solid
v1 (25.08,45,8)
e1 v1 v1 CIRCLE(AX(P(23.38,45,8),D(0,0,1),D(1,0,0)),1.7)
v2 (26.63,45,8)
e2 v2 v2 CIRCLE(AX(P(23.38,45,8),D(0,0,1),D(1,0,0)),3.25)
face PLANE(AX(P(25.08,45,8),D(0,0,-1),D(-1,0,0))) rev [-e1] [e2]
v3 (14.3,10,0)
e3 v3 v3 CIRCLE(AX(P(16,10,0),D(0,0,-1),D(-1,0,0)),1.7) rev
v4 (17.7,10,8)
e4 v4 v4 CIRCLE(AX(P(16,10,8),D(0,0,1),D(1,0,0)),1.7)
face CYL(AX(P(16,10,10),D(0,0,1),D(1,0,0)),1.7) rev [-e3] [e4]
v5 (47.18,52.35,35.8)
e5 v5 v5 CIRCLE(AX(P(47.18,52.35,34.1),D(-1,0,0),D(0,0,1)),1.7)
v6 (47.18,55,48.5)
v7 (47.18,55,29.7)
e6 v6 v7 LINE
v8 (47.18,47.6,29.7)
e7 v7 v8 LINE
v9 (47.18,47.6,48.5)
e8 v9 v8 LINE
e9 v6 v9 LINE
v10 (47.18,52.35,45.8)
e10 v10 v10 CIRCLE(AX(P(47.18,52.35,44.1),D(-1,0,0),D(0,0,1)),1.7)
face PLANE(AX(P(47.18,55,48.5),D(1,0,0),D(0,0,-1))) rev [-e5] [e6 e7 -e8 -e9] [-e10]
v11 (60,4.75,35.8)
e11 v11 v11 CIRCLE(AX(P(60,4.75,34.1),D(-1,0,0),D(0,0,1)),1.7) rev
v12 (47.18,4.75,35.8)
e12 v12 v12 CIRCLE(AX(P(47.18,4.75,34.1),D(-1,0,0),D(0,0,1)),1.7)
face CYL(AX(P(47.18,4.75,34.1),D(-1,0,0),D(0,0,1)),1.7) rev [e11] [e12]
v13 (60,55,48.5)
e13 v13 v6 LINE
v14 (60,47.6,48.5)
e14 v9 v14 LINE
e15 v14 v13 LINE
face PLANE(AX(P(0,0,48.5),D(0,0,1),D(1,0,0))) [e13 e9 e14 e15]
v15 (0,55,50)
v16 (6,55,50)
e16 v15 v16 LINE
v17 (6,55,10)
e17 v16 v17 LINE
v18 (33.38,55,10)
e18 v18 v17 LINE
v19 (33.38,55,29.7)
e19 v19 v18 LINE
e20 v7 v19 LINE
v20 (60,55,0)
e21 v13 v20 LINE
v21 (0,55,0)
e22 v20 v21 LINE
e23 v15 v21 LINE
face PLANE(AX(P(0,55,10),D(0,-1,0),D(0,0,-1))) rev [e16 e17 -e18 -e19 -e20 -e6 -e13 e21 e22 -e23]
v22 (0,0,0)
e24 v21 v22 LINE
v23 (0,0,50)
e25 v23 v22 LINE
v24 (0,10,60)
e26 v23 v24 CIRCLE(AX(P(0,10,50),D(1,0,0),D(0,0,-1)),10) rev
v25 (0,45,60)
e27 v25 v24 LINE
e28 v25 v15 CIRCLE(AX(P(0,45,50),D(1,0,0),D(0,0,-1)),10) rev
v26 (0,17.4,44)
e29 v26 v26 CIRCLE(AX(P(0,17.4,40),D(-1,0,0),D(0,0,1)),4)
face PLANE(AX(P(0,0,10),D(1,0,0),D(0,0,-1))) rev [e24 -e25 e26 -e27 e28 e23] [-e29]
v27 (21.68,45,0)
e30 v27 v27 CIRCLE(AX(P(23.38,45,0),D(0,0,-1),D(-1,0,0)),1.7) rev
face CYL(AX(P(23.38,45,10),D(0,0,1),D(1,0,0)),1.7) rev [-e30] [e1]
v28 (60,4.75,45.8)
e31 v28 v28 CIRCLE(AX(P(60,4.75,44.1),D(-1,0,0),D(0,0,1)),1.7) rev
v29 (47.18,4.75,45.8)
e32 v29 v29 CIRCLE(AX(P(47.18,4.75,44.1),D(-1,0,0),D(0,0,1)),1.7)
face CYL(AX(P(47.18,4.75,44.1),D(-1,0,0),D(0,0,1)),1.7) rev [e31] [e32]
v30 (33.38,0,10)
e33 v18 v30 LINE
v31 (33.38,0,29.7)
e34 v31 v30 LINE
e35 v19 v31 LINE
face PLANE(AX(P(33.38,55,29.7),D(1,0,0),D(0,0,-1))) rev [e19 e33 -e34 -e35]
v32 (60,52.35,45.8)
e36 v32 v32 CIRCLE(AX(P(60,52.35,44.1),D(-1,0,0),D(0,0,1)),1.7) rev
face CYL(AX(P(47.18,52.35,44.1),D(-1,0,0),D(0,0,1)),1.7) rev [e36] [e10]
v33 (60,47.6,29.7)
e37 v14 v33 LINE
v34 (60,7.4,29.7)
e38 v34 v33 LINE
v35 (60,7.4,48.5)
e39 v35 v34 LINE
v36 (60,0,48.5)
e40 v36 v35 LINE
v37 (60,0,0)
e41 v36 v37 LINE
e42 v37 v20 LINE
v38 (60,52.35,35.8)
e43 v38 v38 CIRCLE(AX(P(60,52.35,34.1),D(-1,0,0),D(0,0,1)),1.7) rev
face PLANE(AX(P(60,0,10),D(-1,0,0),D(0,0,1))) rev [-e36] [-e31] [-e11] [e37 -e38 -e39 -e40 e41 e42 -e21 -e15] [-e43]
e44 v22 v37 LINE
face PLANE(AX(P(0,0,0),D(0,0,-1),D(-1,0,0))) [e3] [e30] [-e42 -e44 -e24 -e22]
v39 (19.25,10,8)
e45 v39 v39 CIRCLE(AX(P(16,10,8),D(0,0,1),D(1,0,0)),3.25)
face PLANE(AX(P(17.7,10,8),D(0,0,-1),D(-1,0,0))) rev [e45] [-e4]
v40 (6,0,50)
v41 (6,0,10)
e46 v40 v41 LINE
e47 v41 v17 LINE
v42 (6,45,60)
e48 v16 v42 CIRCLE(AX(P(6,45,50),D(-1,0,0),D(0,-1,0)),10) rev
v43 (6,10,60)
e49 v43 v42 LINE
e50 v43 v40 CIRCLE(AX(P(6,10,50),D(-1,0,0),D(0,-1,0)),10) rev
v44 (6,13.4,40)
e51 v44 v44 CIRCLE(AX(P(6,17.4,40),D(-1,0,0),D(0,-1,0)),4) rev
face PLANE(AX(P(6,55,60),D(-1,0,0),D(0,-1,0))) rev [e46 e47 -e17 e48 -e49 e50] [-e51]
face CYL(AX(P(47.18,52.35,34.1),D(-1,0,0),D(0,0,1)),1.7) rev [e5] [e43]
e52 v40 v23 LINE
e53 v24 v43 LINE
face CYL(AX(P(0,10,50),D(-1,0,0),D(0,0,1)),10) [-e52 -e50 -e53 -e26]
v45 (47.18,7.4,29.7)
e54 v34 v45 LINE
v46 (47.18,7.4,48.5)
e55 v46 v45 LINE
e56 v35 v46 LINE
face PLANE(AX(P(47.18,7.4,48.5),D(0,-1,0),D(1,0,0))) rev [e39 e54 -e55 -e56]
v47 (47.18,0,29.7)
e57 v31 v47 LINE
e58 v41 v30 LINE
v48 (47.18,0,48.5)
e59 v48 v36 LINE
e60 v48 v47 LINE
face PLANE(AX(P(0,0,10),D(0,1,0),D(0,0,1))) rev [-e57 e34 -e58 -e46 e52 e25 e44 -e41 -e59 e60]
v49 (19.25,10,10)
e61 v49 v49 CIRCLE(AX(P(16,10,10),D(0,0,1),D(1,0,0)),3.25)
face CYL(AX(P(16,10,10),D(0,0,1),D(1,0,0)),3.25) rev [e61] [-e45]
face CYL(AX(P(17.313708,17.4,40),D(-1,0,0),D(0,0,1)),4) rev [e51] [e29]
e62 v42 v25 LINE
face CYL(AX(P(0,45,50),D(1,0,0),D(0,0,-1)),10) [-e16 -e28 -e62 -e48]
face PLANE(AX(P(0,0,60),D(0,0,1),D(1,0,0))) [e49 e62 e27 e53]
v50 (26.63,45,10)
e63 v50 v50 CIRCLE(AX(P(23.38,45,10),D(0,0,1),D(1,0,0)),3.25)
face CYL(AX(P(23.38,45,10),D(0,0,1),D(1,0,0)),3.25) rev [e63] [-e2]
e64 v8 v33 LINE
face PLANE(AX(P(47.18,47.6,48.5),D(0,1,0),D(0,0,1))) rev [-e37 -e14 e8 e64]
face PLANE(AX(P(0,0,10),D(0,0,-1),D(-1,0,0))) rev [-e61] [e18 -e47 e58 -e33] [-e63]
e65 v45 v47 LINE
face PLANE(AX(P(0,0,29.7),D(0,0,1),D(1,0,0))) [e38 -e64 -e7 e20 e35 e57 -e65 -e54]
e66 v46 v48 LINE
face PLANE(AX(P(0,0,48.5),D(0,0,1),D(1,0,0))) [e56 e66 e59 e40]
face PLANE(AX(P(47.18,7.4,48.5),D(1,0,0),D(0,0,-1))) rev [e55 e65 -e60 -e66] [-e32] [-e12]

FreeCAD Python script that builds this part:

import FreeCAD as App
import Part
import Sketcher

V = App.Vector
Q = App.Units.Quantity


def edges_at(feature, points):
    """Names of the edges that pass closest to the given points."""
    edges = feature.Shape.Edges
    near = lambda p: min(range(len(edges)), key=lambda i: edges[i].distToShape(Part.Vertex(*p))[0])
    return sorted({f"Edge{near(p) + 1}" for p in points})


def add_polygon(sketch, points):
    """Adds a closed chain of lines whose ends are joined by coincident constraints."""
    first, n = sketch.GeometryCount, len(points)
    for a, b in zip(points, points[1:] + points[:1]):
        sketch.addGeometry(Part.LineSegment(App.Vector(*a, 0), App.Vector(*b, 0)), False)
    for i in range(n):
        sketch.addConstraint(Sketcher.Constraint("Coincident", first + i, 2, first + (i + 1) % n, 1))

doc = App.newDocument("Part")
body = doc.addObject("PartDesign::Body", "Body")

# Sketch on XY plane
sketch1 = body.newObject("Sketcher::SketchObject", "Sketch")
sketch1.AttachmentSupport = (doc.getObject("XY_Plane"), [""])
sketch1.MapMode = "FlatFace"
add_polygon(sketch1, [(0, 55), (0, 0), (60, 0), (60, 55)])  # lines 0-3
sketch1.addConstraint([
    Sketcher.Constraint("Vertical", 0),
    Sketcher.Constraint("Horizontal", 1),
    Sketcher.Constraint("Vertical", 2),
    Sketcher.Constraint("Horizontal", 3),
    Sketcher.Constraint("Coincident", 0, 2, -1, 1),
    Sketcher.Constraint("DistanceX", 1, 1, 1, 2, Q("60 mm")),
    Sketcher.Constraint("DistanceY", 0, 2, 0, 1, Q("55 mm")),
])
pad1 = body.newObject("PartDesign::Pad", "Pad")
pad1.Profile = sketch1
pad1.Length = 10

# Sketch on XY plane
sketch2 = body.newObject("Sketcher::SketchObject", "Sketch001")
sketch2.AttachmentSupport = (doc.getObject("XY_Plane"), [""])
sketch2.MapMode = "FlatFace"
sketch2.AttachmentOffset = App.Placement(V(0, 0, 10), App.Rotation())
add_polygon(sketch2, [(0, 55), (0, 0), (6, 0), (6, 55)])  # lines 0-3
sketch2.addConstraint([
    Sketcher.Constraint("Vertical", 0),
    Sketcher.Constraint("Horizontal", 1),
    Sketcher.Constraint("Vertical", 2),
    Sketcher.Constraint("Horizontal", 3),
    Sketcher.Constraint("Coincident", 0, 2, -1, 1),
    Sketcher.Constraint("DistanceX", 1, 1, 1, 2, Q("6 mm")),
    Sketcher.Constraint("DistanceY", 0, 2, 0, 1, Q("55 mm")),
])
pad2 = body.newObject("PartDesign::Pad", "Pad001")
pad2.Profile = sketch2
pad2.Length = 50

# Sketch on XY plane
sketch3 = body.newObject("Sketcher::SketchObject", "Sketch002")
sketch3.AttachmentSupport = (doc.getObject("XY_Plane"), [""])
sketch3.MapMode = "FlatFace"
sketch3.AttachmentOffset = App.Placement(V(0, 0, 10), App.Rotation())
add_polygon(sketch3, [(33, 55), (33, 0), (60, 0), (60, 55)])  # lines 0-3
sketch3.addConstraint([
    Sketcher.Constraint("Vertical", 0),
    Sketcher.Constraint("Horizontal", 1),
    Sketcher.Constraint("Vertical", 2),
    Sketcher.Constraint("Horizontal", 3),
    Sketcher.Constraint("PointOnObject", 0, 2, -1),
    Sketcher.Constraint("DistanceY", 0, 2, 0, 1, Q("55 mm")),
    Sketcher.Constraint("DistanceX", -1, 1, 1, 2, Q("60 mm")),
    Sketcher.Constraint("DistanceX", 1, 1, 1, 2, Q("26.62 mm")),
])
pad3 = body.newObject("PartDesign::Pad", "Pad002")
pad3.Profile = sketch3
pad3.Length = 19.7

# Sketch on XY plane
sketch4 = body.newObject("Sketcher::SketchObject", "Sketch003")
sketch4.AttachmentSupport = (doc.getObject("XY_Plane"), [""])
sketch4.MapMode = "FlatFace"
sketch4.AttachmentOffset = App.Placement(V(0, 0, 10), App.Rotation())
sketch4.addGeometry([
    Part.Circle(V(23.4, 45, 0), V(0, 0, 1), 1.7),
    Part.Circle(V(16, 10, 0), V(0, 0, 1), 1.7),
], False)
sketch4.addConstraint([
    Sketcher.Constraint("Equal", 0, 1),
    Sketcher.Constraint("Diameter", 0, Q("3.4 mm")),
    Sketcher.Constraint("DistanceY", -1, 1, 0, 3, Q("45 mm")),
    Sketcher.Constraint("DistanceX", -1, 1, 1, 3, Q("16 mm")),
    Sketcher.Constraint("DistanceY", -1, 1, 1, 3, Q("10 mm")),
    Sketcher.Constraint("DistanceX", -1, 1, 0, 3, Q("23.38 mm")),
])
doc.recompute()
hole = body.newObject("PartDesign::Hole", "Hole")
hole.Profile = sketch4
hole.ThreadType = "None"
hole.Diameter = 3.4
hole.DepthType = "Dimension"
hole.Depth = 10
hole.DrillPoint = "Angled"
hole.DrillPointAngle = 118
hole.HoleCutType = "Counterbore"
hole.HoleCutDiameter = 6.5
hole.HoleCutDepth = 2
doc.recompute()

fillet = body.newObject("PartDesign::Fillet", "Fillet")
fillet.Base = (hole, edges_at(hole, [(3, 0, 60), (3, 55, 60)]))
fillet.Radius = 10

# Sketch on YZ plane
sketch5 = body.newObject("Sketcher::SketchObject", "Sketch004")
sketch5.AttachmentSupport = (doc.getObject("YZ_Plane"), [""])
sketch5.MapMode = "FlatFace"
sketch5.addGeometry(Part.Circle(V(17.4, 40, 0), V(0, 0, 1), 4), False)
sketch5.addConstraint([
    Sketcher.Constraint("Diameter", 0, Q("8 mm")),
    Sketcher.Constraint("DistanceY", -1, 1, 0, 3, Q("40 mm")),
    Sketcher.Constraint("DistanceX", -1, 1, 0, 3, Q("17.4 mm")),
])
pocket1 = body.newObject("PartDesign::Pocket", "Pocket")
pocket1.Profile = sketch5
pocket1.Length = 6
pocket1.Reversed = True

# Sketch on XY plane
sketch6 = body.newObject("Sketcher::SketchObject", "Sketch005")
sketch6.AttachmentSupport = (doc.getObject("XY_Plane"), [""])
sketch6.MapMode = "FlatFace"
sketch6.AttachmentOffset = App.Placement(V(0, 0, 29.7), App.Rotation())
add_polygon(sketch6, [(47, 7), (47, 0), (60, 0), (60, 7)])  # lines 0-3
add_polygon(sketch6, [(47, 55), (47, 48), (60, 48), (60, 55)])  # lines 4-7
sketch6.addConstraint([
    Sketcher.Constraint("Vertical", 0),
    Sketcher.Constraint("Horizontal", 1),
    Sketcher.Constraint("Vertical", 2),
    Sketcher.Constraint("Horizontal", 3),
    Sketcher.Constraint("Vertical", 4),
    Sketcher.Constraint("Horizontal", 5),
    Sketcher.Constraint("Vertical", 6),
    Sketcher.Constraint("Horizontal", 7),
    Sketcher.Constraint("PointOnObject", 0, 2, -1),
    Sketcher.Constraint("Vertical", 3, 2, 4, 2),
    Sketcher.Constraint("Vertical", 2, 2, 5, 2),
    Sketcher.Constraint("Equal", 2, 4),
    Sketcher.Constraint("DistanceY", 0, 2, 0, 1, Q("7.4 mm")),
    Sketcher.Constraint("DistanceX", -1, 1, 1, 2, Q("60 mm")),
    Sketcher.Constraint("DistanceY", -1, 1, 6, 2, Q("55 mm")),
    Sketcher.Constraint("DistanceX", 1, 1, 1, 2, Q("12.82 mm")),
])
pad4 = body.newObject("PartDesign::Pad", "Pad003")
pad4.Profile = sketch6
pad4.Length = 18.8

# Sketch on YZ plane
sketch7 = body.newObject("Sketcher::SketchObject", "Sketch006")
sketch7.AttachmentSupport = (doc.getObject("YZ_Plane"), [""])
sketch7.MapMode = "FlatFace"
sketch7.AttachmentOffset = App.Placement(V(0, 0, 47.18), App.Rotation())
sketch7.addGeometry([
    Part.Circle(V(52.4, 44.1, 0), V(0, 0, 1), 1.7),
    Part.Circle(V(52.4, 34.1, 0), V(0, 0, 1), 1.7),
    Part.Circle(V(4.8, 44.1, 0), V(0, 0, 1), 1.7),
    Part.Circle(V(4.8, 34.1, 0), V(0, 0, 1), 1.7),
], False)
sketch7.addConstraint([
    Sketcher.Constraint("Equal", 0, 1),
    Sketcher.Constraint("Equal", 1, 2),
    Sketcher.Constraint("Equal", 2, 3),
    Sketcher.Constraint("Horizontal", 0, 3, 2, 3),
    Sketcher.Constraint("Horizontal", 1, 3, 3, 3),
    Sketcher.Constraint("Vertical", 0, 3, 1, 3),
    Sketcher.Constraint("Vertical", 2, 3, 3, 3),
    Sketcher.Constraint("Diameter", 0, Q("3.4 mm")),
    Sketcher.Constraint("DistanceY", 1, 3, 0, 3, Q("10 mm")),
    Sketcher.Constraint("DistanceY", -1, 1, 0, 3, Q("44.1 mm")),
    Sketcher.Constraint("DistanceX", 2, 3, 0, 3, Q("47.6 mm")),
    Sketcher.Constraint("DistanceX", -1, 1, 0, 3, Q("52.35 mm")),
])
doc.recompute()
hole2 = body.newObject("PartDesign::Hole", "Hole001")
hole2.Profile = sketch7
hole2.ThreadType = "None"
hole2.Diameter = 3.4
hole2.DepthType = "Dimension"
hole2.Depth = 12.82
hole2.DrillPoint = "Angled"
hole2.DrillPointAngle = 118
hole2.Reversed = True

doc.recompute()
